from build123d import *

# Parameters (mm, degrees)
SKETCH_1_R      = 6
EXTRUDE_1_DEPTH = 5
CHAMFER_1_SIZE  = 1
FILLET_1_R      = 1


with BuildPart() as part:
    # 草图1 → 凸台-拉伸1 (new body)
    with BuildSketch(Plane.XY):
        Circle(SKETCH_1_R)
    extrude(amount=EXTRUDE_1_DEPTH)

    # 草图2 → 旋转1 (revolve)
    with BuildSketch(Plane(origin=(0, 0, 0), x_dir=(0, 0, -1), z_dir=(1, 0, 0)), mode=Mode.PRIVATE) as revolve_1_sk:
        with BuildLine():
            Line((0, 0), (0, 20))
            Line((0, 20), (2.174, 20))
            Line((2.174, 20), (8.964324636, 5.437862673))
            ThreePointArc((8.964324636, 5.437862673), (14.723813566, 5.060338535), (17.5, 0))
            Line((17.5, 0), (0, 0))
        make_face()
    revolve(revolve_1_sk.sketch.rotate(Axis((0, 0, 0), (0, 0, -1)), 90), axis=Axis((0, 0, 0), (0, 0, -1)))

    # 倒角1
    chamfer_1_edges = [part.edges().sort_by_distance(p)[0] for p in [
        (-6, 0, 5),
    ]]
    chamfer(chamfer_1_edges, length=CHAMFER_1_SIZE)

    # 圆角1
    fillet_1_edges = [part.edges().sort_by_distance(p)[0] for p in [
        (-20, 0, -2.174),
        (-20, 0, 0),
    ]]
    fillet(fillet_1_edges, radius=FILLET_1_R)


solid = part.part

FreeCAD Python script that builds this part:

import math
import FreeCAD as App
import Part
import Sketcher


def edges_at(feature, points):
    """Names of the edges that pass closest to the given points."""
    edges = feature.Shape.Edges
    near = lambda p: min(range(len(edges)), key=lambda i: edges[i].distToShape(Part.Vertex(*p))[0])
    return sorted({f"Edge{near(p) + 1}" for p in points})

doc = App.newDocument("Part")
body = doc.addObject("PartDesign::Body", "Body")

sketch1 = doc.addObject("Sketcher::SketchObject", "Sketch")
body.addObject(sketch1)
sketch1.AttachmentSupport = (doc.XY_Plane, [""])
sketch1.MapMode = "FlatFace"
sketch1.addGeometry(Part.Circle(App.Vector(0, 0, 0), App.Vector(0, 0, 1), 6), False)
sketch1.addConstraint([
    Sketcher.Constraint("Coincident", 0, 3, -1, 1),
    Sketcher.Constraint("Diameter", 0, 12.0),
])
pad1 = doc.addObject("PartDesign::Pad", "Pad")
body.addObject(pad1)
pad1.Profile = sketch1
pad1.Length = 5

sketch2 = doc.addObject("Sketcher::SketchObject", "Sketch001")
body.addObject(sketch2)
sketch2.AttachmentSupport = (doc.YZ_Plane, [""])
sketch2.MapMode = "FlatFace"
sketch2.addGeometry([
    Part.LineSegment(App.Vector(20, 0, 0), App.Vector(0, 0, 0)),
    Part.LineSegment(App.Vector(0, 0, 0), App.Vector(0, -17.5, 0)),
    Part.ArcOfCircle(Part.Circle(App.Vector(0, -11.5, 0), App.Vector(0, 0, 1), 6), math.radians(-90), math.radians(25)),
    Part.LineSegment(App.Vector(5.4, -9, 0), App.Vector(20, -2.2, 0)),
    Part.LineSegment(App.Vector(20, -2.2, 0), App.Vector(20, 0, 0)),
], False)
sketch2.addConstraint([
    Sketcher.Constraint("Coincident", 0, 2, 1, 1),
    Sketcher.Constraint("Coincident", 1, 2, 2, 1),
    Sketcher.Constraint("Coincident", 2, 2, 3, 1),
    Sketcher.Constraint("Coincident", 3, 2, 4, 1),
    Sketcher.Constraint("Coincident", 4, 2, 0, 1),
    Sketcher.Constraint("Horizontal", 0),
    Sketcher.Constraint("Vertical", 1),
    Sketcher.Constraint("Vertical", 4),
    Sketcher.Constraint("Coincident", 0, 2, -1, 1),
    Sketcher.Constraint("PointOnObject", 2, 3, -2),
    Sketcher.Constraint("Radius", 2, 6.0),
    Sketcher.Constraint("DistanceX", 0, 2, 0, 1, 20.0),
    Sketcher.Constraint("DistanceY", 1, 2, 1, 1, 17.5),
    Sketcher.Constraint("DistanceY", 4, 1, 4, 2, 2.174),
    Sketcher.Constraint("DistanceX", -1, 1, 2, 2, 5.437863),
])
revolution = doc.addObject("PartDesign::Revolution", "Revolution")
body.addObject(revolution)
revolution.Profile = sketch2
revolution.ReferenceAxis = (sketch2, ["V_Axis"])
revolution.Angle = 360
doc.recompute()

chamfer = doc.addObject("PartDesign::Chamfer", "Chamfer")
body.addObject(chamfer)
chamfer.Base = (revolution, edges_at(revolution, [(-6, 0, 5)]))
chamfer.Size = 1
doc.recompute()

fillet = doc.addObject("PartDesign::Fillet", "Fillet")
body.addObject(fillet)
fillet.Base = (chamfer, edges_at(chamfer, [(-20, 0, -2.174), (-20, 0, 0)]))
fillet.Radius = 1

doc.recompute()
